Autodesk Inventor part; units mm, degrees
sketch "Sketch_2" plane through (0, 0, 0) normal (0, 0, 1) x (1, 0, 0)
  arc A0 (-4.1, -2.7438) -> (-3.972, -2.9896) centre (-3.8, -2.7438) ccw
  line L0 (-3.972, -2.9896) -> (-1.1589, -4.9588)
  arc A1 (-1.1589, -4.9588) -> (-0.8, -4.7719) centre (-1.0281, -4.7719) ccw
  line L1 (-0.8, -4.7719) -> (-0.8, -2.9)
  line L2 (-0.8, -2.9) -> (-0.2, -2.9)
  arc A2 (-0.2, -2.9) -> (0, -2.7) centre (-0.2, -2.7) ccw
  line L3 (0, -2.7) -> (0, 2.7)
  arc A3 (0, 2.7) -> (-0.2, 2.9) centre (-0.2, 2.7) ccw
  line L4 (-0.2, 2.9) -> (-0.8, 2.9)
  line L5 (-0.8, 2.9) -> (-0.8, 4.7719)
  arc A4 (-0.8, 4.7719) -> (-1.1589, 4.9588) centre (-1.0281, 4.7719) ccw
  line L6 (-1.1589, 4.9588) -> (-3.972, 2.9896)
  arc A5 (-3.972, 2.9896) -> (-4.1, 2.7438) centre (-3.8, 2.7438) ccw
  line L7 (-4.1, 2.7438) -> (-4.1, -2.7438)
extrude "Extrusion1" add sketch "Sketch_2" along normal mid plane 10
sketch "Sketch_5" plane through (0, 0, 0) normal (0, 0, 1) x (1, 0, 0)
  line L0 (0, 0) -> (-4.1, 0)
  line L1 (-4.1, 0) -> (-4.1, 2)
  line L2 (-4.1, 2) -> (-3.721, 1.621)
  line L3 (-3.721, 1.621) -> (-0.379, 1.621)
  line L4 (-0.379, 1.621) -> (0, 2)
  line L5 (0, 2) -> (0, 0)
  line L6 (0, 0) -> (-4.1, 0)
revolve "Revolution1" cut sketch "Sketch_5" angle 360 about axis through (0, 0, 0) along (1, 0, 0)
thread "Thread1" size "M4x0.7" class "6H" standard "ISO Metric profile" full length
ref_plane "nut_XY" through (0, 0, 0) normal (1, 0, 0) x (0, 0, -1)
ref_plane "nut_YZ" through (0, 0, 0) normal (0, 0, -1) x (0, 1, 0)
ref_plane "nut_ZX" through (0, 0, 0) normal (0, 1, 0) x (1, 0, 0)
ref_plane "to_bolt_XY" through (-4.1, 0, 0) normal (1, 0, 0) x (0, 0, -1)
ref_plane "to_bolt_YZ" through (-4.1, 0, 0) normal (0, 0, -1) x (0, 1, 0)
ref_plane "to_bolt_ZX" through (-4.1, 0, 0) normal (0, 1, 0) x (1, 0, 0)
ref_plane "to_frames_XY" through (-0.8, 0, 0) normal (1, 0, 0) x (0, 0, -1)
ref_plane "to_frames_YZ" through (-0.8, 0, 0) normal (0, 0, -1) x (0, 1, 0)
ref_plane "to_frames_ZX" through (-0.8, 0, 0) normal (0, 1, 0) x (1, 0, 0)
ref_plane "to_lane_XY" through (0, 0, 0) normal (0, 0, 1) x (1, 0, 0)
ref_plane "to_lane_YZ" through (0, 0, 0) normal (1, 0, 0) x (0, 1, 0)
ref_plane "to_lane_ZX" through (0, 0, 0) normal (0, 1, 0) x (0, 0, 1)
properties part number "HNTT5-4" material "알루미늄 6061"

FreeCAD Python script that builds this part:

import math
import FreeCAD as App
import Part
import Sketcher
from FreeCAD import Vector
Q = App.Units.Quantity

doc = App.newDocument("Part")
body = doc.addObject("PartDesign::Body", "Body")

# Sketch on XY plane
sketch1 = doc.addObject("Sketcher::SketchObject", "Sketch")
body.addObject(sketch1)
sketch1.AttachmentSupport = (doc.XY_Plane, [""])
sketch1.MapMode = "FlatFace"
sketch1.addGeometry([
    Part.LineSegment(Vector(-4.1, 2.74, 0), Vector(-4.1, -2.74, 0)),  # 0
    Part.ArcOfCircle(Part.Circle(Vector(-3.8, -2.74, 0), Vector(0, 0, 1), 0.3), math.radians(180), math.radians(235)),  # 1
    Part.LineSegment(Vector(-3.97, -2.99, 0), Vector(-1.16, -4.96, 0)),  # 2
    Part.ArcOfCircle(Part.Circle(Vector(-1.03, -4.77, 0), Vector(0, 0, 1), 0.23), math.radians(-125), math.radians(0)),  # 3
    Part.LineSegment(Vector(-0.8, -4.77, 0), Vector(-0.8, -2.9, 0)),  # 4
    Part.LineSegment(Vector(-0.8, -2.9, 0), Vector(-0.2, -2.9, 0)),  # 5
    Part.ArcOfCircle(Part.Circle(Vector(-0.2, -2.7, 0), Vector(0, 0, 1), 0.2), math.radians(-90), math.radians(0)),  # 6
    Part.LineSegment(Vector(0, -2.7, 0), Vector(0, 2.7, 0)),  # 7
    Part.ArcOfCircle(Part.Circle(Vector(-0.2, 2.7, 0), Vector(0, 0, 1), 0.2), math.radians(0), math.radians(90)),  # 8
    Part.LineSegment(Vector(-0.2, 2.9, 0), Vector(-0.8, 2.9, 0)),  # 9
    Part.LineSegment(Vector(-0.8, 2.9, 0), Vector(-0.8, 4.77, 0)),  # 10
    Part.ArcOfCircle(Part.Circle(Vector(-1.03, 4.77, 0), Vector(0, 0, 1), 0.23), math.radians(0), math.radians(125)),  # 11
    Part.LineSegment(Vector(-1.16, 4.96, 0), Vector(-3.97, 2.99, 0)),  # 12
    Part.ArcOfCircle(Part.Circle(Vector(-3.8, 2.74, 0), Vector(0, 0, 1), 0.3), math.radians(125), math.radians(180)),  # 13
], False)
sketch1.addConstraint([
    Sketcher.Constraint("Tangent", 0, 2, 1, 1),
    Sketcher.Constraint("Tangent", 1, 2, 2, 1),
    Sketcher.Constraint("Tangent", 2, 2, 3, 1),
    Sketcher.Constraint("Tangent", 3, 2, 4, 1),
    Sketcher.Constraint("Coincident", 4, 2, 5, 1),
    Sketcher.Constraint("Tangent", 5, 2, 6, 1),
    Sketcher.Constraint("Tangent", 6, 2, 7, 1),
    Sketcher.Constraint("Tangent", 7, 2, 8, 1),
    Sketcher.Constraint("Tangent", 8, 2, 9, 1),
    Sketcher.Constraint("Coincident", 9, 2, 10, 1),
    Sketcher.Constraint("Tangent", 10, 2, 11, 1),
    Sketcher.Constraint("Tangent", 11, 2, 12, 1),
    Sketcher.Constraint("Tangent", 12, 2, 13, 1),
    Sketcher.Constraint("Tangent", 13, 2, 0, 1),
    Sketcher.Constraint("Vertical", 0),
    Sketcher.Constraint("Vertical", 4),
    Sketcher.Constraint("Horizontal", 5),
    Sketcher.Constraint("Vertical", 7),
    Sketcher.Constraint("Horizontal", 9),
    Sketcher.Constraint("Vertical", 10),
    Sketcher.Constraint("Equal", 6, 8),
    Sketcher.Constraint("Equal", 3, 11),
    Sketcher.Constraint("Equal", 1, 13),
    Sketcher.Constraint("Symmetric", 6, 2, 7, 2, -1, 1),
    Sketcher.Constraint("Symmetric", 3, 3, 11, 3, -1),
    Sketcher.Constraint("Vertical", 2, 2, 11, 2),
    Sketcher.Constraint("Radius", 1, Q("0.3 mm")),
    Sketcher.Constraint("Radius", 6, Q("0.2 mm")),
    Sketcher.Constraint("DistanceX", 5, 1, 5, 2, Q("0.6 mm")),
    Sketcher.Constraint("DistanceY", 7, 1, 7, 2, Q("5.4 mm")),
    Sketcher.Constraint("Radius", 11, Q("0.228 mm")),
    Sketcher.Constraint("DistanceX", 1, 3, 3, 2, Q("3 mm")),
    Sketcher.Constraint("DistanceY", 4, 1, 4, 2, Q("1.872 mm")),
    Sketcher.Constraint("DistanceY", 0, 2, 0, 1, Q("5.4876 mm")),
])
pad1 = doc.addObject("PartDesign::Pad", "Pad")
body.addObject(pad1)
pad1.Profile = sketch1
pad1.Length = 10
pad1.Midplane = True

# Sketch on XY plane
sketch2 = doc.addObject("Sketcher::SketchObject", "Sketch001")
body.addObject(sketch2)
sketch2.AttachmentSupport = (doc.XY_Plane, [""])
sketch2.MapMode = "FlatFace"
sketch2.addGeometry([
    Part.LineSegment(Vector(-4.1, 0, 0), Vector(0, 0, 0)),  # 0
    Part.LineSegment(Vector(0, 0, 0), Vector(0, 2, 0)),  # 1
    Part.LineSegment(Vector(0, 2, 0), Vector(-0.4, 1.6, 0)),  # 2
    Part.LineSegment(Vector(-0.4, 1.6, 0), Vector(-3.7, 1.6, 0)),  # 3
    Part.LineSegment(Vector(-3.7, 1.6, 0), Vector(-4.1, 2, 0)),  # 4
    Part.LineSegment(Vector(-4.1, 2, 0), Vector(-4.1, 0, 0)),  # 5
], False)
sketch2.addConstraint([
    Sketcher.Constraint("Coincident", 0, 2, 1, 1),
    Sketcher.Constraint("Coincident", 1, 2, 2, 1),
    Sketcher.Constraint("Coincident", 2, 2, 3, 1),
    Sketcher.Constraint("Coincident", 3, 2, 4, 1),
    Sketcher.Constraint("Coincident", 4, 2, 5, 1),
    Sketcher.Constraint("Coincident", 5, 2, 0, 1),
    Sketcher.Constraint("Horizontal", 0),
    Sketcher.Constraint("Vertical", 1),
    Sketcher.Constraint("Horizontal", 3),
    Sketcher.Constraint("Vertical", 5),
    Sketcher.Constraint("Coincident", 0, 2, -1, 1),
    Sketcher.Constraint("Perpendicular", 2, 4),
    Sketcher.Constraint("Horizontal", 1, 2, 4, 2),
    Sketcher.Constraint("Equal", 2, 4),
    Sketcher.Constraint("DistanceY", 1, 1, 1, 2, Q("2 mm")),
    Sketcher.Constraint("DistanceX", 0, 1, 0, 2, Q("4.1 mm")),
    Sketcher.Constraint("DistanceX", 3, 2, 3, 1, Q("3.342 mm")),
])
groove = doc.addObject("PartDesign::Groove", "Groove")
body.addObject(groove)
groove.Profile = sketch2
groove.ReferenceAxis = (sketch2, ["H_Axis"])
groove.Angle = 360

doc.recompute()
